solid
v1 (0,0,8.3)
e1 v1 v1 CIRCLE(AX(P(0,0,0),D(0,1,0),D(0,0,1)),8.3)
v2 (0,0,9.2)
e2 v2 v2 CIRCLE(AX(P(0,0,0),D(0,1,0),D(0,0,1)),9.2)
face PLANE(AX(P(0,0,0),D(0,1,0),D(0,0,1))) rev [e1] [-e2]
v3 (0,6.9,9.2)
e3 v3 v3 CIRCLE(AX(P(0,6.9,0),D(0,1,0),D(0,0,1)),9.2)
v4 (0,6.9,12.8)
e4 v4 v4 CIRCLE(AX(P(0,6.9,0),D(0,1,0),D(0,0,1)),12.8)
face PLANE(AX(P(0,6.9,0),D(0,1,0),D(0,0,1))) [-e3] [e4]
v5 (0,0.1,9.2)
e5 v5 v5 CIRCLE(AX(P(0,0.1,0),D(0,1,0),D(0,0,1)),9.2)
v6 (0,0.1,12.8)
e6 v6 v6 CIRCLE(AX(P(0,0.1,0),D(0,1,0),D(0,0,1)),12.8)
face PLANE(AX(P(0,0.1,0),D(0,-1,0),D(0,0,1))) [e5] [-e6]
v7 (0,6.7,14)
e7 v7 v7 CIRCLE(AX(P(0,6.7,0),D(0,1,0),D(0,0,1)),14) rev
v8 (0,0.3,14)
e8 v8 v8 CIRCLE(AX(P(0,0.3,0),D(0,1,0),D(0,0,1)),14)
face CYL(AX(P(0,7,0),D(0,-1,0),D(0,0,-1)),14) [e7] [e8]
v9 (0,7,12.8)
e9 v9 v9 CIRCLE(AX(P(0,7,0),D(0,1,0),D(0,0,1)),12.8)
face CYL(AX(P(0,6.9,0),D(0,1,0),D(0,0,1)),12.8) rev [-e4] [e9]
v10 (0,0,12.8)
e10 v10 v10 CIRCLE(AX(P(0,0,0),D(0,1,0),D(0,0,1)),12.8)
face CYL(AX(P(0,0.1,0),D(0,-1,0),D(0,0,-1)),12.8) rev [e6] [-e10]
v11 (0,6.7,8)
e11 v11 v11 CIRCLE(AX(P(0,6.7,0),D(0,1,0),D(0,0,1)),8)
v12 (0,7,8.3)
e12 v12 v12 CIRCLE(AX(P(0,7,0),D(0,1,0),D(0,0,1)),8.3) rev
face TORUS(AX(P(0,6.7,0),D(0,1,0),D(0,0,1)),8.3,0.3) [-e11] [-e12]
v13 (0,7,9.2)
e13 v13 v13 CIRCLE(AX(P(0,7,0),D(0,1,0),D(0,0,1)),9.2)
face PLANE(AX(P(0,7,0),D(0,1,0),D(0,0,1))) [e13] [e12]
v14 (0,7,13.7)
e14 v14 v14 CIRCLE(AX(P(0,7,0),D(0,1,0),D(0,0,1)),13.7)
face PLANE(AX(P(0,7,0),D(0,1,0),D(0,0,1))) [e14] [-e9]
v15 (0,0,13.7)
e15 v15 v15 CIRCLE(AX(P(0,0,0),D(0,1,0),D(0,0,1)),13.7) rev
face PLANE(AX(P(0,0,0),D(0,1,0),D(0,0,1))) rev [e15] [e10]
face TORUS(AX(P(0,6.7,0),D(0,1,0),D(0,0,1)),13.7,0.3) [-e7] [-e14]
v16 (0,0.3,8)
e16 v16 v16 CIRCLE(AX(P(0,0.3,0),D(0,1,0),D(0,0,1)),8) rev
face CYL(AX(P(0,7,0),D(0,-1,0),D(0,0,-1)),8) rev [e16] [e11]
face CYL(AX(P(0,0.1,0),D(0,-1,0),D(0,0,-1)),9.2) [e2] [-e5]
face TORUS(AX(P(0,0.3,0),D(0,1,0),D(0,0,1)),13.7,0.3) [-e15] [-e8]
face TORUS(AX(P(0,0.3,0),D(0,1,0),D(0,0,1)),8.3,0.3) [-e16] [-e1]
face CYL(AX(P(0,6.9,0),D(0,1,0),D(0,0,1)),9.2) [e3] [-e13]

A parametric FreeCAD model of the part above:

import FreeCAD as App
import Part
import Sketcher

V = App.Vector


def edges_at(feature, points):
    """Names of the edges that pass closest to the given points."""
    edges = feature.Shape.Edges
    near = lambda p: min(range(len(edges)), key=lambda i: edges[i].distToShape(Part.Vertex(*p))[0])
    return sorted({f"Edge{near(p) + 1}" for p in points})

doc = App.newDocument("Part")
body = doc.addObject("PartDesign::Body", "Body")

# Sketch on XZ plane
sketch1 = body.newObject("Sketcher::SketchObject", "Sketch")
sketch1.AttachmentSupport = (doc.getObject("XZ_Plane"), [""])
sketch1.MapMode = "FlatFace"
sketch1.addGeometry(Part.Circle(V(0, 0, 0), V(0, 0, 1), 14), False)
sketch1.addGeometry(Part.Circle(V(0, 0, 0), V(0, 0, 1), 8), False)
sketch1.addConstraint(Sketcher.Constraint("Coincident", 0, 3, -1, 1))
sketch1.addConstraint(Sketcher.Constraint("Coincident", 1, 3, -1, 1))
sketch1.addConstraint(Sketcher.Constraint("Diameter", 0, 28.0))
sketch1.addConstraint(Sketcher.Constraint("Diameter", 1, 16.0))
pad1 = body.newObject("PartDesign::Pad", "Pad")
pad1.Profile = sketch1
pad1.Length = 7
pad1.Reversed = True

# Sketch on XZ plane
sketch2 = body.newObject("Sketcher::SketchObject", "Sketch001")
sketch2.AttachmentSupport = (doc.getObject("XZ_Plane"), [""])
sketch2.MapMode = "FlatFace"
sketch2.AttachmentOffset = App.Placement(V(0, 0, -7), App.Rotation())
sketch2.addGeometry(Part.Circle(V(0, 0, 0), V(0, 0, 1), 13), False)
sketch2.addGeometry(Part.Circle(V(0, 0, 0), V(0, 0, 1), 9), False)
sketch2.addConstraint(Sketcher.Constraint("Coincident", 0, 3, -1, 1))
sketch2.addConstraint(Sketcher.Constraint("Coincident", 1, 3, -1, 1))
sketch2.addConstraint(Sketcher.Constraint("Diameter", 0, 25.6))
sketch2.addConstraint(Sketcher.Constraint("Diameter", 1, 18.4))
pocket1 = body.newObject("PartDesign::Pocket", "Pocket")
pocket1.Profile = sketch2
pocket1.Length = 0.1
pocket1.Reversed = True
doc.recompute()

datumplane = body.newObject("PartDesign::Plane", "DatumPlane")
datumplane.AttachmentSupport = (doc.getObject("XZ_Plane"), [""])
datumplane.MapMode = "FlatFace"
datumplane.AttachmentOffset = App.Placement(V(0, 0, -3.5), App.Rotation())
mirrored = body.newObject("PartDesign::Mirrored", "Mirrored")
mirrored.Originals = [pocket1]
mirrored.MirrorPlane = (datumplane, [""])
body.Tip = mirrored
doc.recompute()

fillet = body.newObject("PartDesign::Fillet", "Fillet")
fillet.Base = (mirrored, edges_at(mirrored, [
    (0, 0, -14),
    (0, 7, -14),
    (0, 0, -8),
    (0, 7, -8),
]))
fillet.Radius = 0.3

doc.recompute()
